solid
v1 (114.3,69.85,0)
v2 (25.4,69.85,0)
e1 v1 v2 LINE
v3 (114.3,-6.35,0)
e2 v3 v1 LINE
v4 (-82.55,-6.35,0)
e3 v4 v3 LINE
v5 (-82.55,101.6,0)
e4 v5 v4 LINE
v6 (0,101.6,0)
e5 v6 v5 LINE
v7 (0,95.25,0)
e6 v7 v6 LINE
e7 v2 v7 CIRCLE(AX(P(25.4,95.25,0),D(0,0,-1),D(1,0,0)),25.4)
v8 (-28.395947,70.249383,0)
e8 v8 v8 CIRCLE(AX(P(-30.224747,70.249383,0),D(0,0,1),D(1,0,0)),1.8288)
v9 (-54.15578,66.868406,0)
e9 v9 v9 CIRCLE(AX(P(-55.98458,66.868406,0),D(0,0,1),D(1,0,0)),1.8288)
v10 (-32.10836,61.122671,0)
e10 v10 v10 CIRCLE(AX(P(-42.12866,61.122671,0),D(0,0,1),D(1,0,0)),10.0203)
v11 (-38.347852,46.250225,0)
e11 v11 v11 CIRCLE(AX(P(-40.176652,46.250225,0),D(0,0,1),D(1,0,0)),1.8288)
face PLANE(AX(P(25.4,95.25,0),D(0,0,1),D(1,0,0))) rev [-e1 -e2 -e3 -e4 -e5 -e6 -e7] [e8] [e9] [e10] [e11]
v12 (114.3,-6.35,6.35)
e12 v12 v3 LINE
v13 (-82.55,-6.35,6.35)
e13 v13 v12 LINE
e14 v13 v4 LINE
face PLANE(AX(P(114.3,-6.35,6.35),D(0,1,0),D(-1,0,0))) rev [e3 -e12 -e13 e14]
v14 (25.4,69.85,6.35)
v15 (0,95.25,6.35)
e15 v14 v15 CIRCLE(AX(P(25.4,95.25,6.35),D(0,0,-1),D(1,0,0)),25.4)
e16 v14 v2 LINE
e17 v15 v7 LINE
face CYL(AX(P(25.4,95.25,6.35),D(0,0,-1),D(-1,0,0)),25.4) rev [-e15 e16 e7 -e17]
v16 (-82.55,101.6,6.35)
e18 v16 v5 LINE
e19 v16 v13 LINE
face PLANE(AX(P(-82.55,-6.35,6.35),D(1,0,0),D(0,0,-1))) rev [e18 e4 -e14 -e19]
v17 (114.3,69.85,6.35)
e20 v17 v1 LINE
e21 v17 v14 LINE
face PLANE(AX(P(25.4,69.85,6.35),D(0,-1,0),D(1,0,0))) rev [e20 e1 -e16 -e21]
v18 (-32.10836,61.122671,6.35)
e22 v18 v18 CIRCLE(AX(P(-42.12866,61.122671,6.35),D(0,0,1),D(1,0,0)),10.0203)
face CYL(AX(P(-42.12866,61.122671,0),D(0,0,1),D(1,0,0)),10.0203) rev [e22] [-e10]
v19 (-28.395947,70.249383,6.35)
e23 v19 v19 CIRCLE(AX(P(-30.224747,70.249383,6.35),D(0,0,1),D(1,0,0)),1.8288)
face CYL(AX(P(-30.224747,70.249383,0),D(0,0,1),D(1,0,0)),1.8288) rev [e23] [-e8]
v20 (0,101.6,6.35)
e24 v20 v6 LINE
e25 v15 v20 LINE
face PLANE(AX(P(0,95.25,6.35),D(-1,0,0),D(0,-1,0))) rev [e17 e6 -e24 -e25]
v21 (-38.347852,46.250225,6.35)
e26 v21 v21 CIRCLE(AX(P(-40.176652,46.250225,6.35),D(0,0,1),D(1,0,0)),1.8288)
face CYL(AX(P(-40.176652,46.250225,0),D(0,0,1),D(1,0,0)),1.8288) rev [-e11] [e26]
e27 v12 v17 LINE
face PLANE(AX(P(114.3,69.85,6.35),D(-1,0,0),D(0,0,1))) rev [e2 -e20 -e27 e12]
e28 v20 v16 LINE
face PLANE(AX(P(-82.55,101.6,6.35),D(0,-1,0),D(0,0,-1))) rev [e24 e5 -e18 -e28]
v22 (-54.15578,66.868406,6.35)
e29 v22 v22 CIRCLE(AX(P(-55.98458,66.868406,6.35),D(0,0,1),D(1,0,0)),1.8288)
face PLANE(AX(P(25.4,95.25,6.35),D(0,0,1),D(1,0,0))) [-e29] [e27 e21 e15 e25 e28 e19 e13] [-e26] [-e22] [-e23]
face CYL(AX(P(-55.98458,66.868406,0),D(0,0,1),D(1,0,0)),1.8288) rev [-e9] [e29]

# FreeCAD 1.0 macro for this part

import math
import FreeCAD as App
import Part
import Sketcher
from FreeCAD import Vector
Q = App.Units.Quantity

doc = App.newDocument("Part")
params = doc.addObject("Spreadsheet::Sheet", "Params")
for row, (alias, value) in enumerate([
    ("sketch1_radius", "1 in"),
    ("sketch1_height", "3 in"),
    ("sketch1_width", "3.5 in"),
    ("sketch1_width2", "7.75 in"),
    ("sketch1_height2", "4.25 in"),
    ("pad1_length", "0.25 in"),
    ("sketch2_diameter", "0.789 in"),
    ("sketch2_diameter2", "0.144 in"),
], start=1):
    params.set(f"A{row}", alias)
    params.set(f"B{row}", "=" + value)
    params.setAlias(f"B{row}", alias)

body = doc.addObject("PartDesign::Body", "Body")

# Sketch on XY plane
sketch1 = body.newObject("Sketcher::SketchObject", "Sketch")
sketch1.AttachmentSupport = (doc.getObject("XY_Plane"), [""])
sketch1.MapMode = "FlatFace"
sketch1.addGeometry(Part.LineSegment(Vector(-83, 102, 0), Vector(-83, -6, 0)), False)
sketch1.addGeometry(Part.LineSegment(Vector(-83, -6, 0), Vector(114, -6, 0)), False)
sketch1.addGeometry(Part.LineSegment(Vector(114, -6, 0), Vector(114, 70, 0)), False)
sketch1.addGeometry(Part.LineSegment(Vector(114, 70, 0), Vector(25, 70, 0)), False)
sketch1.addGeometry(Part.ArcOfCircle(Part.Circle(Vector(25, 95, 0), Vector(0, 0, 1), 25), math.radians(180), math.radians(270)), False)
sketch1.addGeometry(Part.LineSegment(Vector(0, 95, 0), Vector(0, 102, 0)), False)
sketch1.addGeometry(Part.LineSegment(Vector(0, 102, 0), Vector(-83, 102, 0)), False)
sketch1.addConstraint(Sketcher.Constraint("Coincident", 0, 2, 1, 1))
sketch1.addConstraint(Sketcher.Constraint("Coincident", 1, 2, 2, 1))
sketch1.addConstraint(Sketcher.Constraint("Coincident", 2, 2, 3, 1))
sketch1.addConstraint(Sketcher.Constraint("Tangent", 3, 2, 4, 2))
sketch1.addConstraint(Sketcher.Constraint("Tangent", 4, 1, 5, 1))
sketch1.addConstraint(Sketcher.Constraint("Coincident", 5, 2, 6, 1))
sketch1.addConstraint(Sketcher.Constraint("Coincident", 6, 2, 0, 1))
sketch1.addConstraint(Sketcher.Constraint("Vertical", 0))
sketch1.addConstraint(Sketcher.Constraint("Horizontal", 1))
sketch1.addConstraint(Sketcher.Constraint("Vertical", 2))
sketch1.addConstraint(Sketcher.Constraint("Horizontal", 3))
sketch1.addConstraint(Sketcher.Constraint("Vertical", 5))
sketch1.addConstraint(Sketcher.Constraint("Horizontal", 6))
sketch1.addConstraint(Sketcher.Constraint("PointOnObject", 4, 1, -2))
sketch1.addConstraint(Sketcher.Constraint("Radius", 4, Q("1 in")))
sketch1.addConstraint(Sketcher.Constraint("DistanceY", 2, 1, 2, 2, Q("3 in")))
sketch1.addConstraint(Sketcher.Constraint("DistanceX", 3, 2, 3, 1, Q("3.5 in")))
sketch1.addConstraint(Sketcher.Constraint("DistanceY", -1, 1, 5, 2, Q("4 in")))
sketch1.addConstraint(Sketcher.Constraint("DistanceX", 1, 1, 1, 2, Q("7.75 in")))
sketch1.addConstraint(Sketcher.Constraint("DistanceY", 0, 2, 0, 1, Q("4.25 in")))
sketch1.setExpression("Constraints[14]", "Params.sketch1_radius")
sketch1.setExpression("Constraints[15]", "Params.sketch1_height")
sketch1.setExpression("Constraints[16]", "Params.sketch1_width")
sketch1.setExpression("Constraints[18]", "Params.sketch1_width2")
sketch1.setExpression("Constraints[19]", "Params.sketch1_height2")
pad1 = body.newObject("PartDesign::Pad", "Pad")
pad1.Profile = sketch1
pad1.setExpression("Length", "Params.pad1_length")

# Sketch on XY plane
sketch2 = body.newObject("Sketcher::SketchObject", "Sketch001")
sketch2.AttachmentSupport = (doc.getObject("XY_Plane"), [""])
sketch2.MapMode = "FlatFace"
sketch2.AttachmentOffset = App.Placement(Vector(0, 0, 0.25 * 25.4), App.Rotation())
sketch2.addGeometry(Part.Circle(Vector(-42.1, 61.1, 0), Vector(0, 0, 1), 10), False)
sketch2.addGeometry(Part.Circle(Vector(-30.2, 70.2, 0), Vector(0, 0, 1), 1.8), False)
sketch2.addGeometry(Part.Circle(Vector(-56, 66.9, 0), Vector(0, 0, 1), 1.8), False)
sketch2.addGeometry(Part.Circle(Vector(-40.2, 46.3, 0), Vector(0, 0, 1), 1.8), False)
sketch2.addConstraint(Sketcher.Constraint("Equal", 1, 2))
sketch2.addConstraint(Sketcher.Constraint("Equal", 2, 3))
sketch2.addConstraint(Sketcher.Constraint("Diameter", 0, Q("0.789 in")))
sketch2.addConstraint(Sketcher.Constraint("Diameter", 1, Q("0.144 in")))
sketch2.addConstraint(Sketcher.Constraint("DistanceX", 0, 3, -1, 1, Q("42.12866 mm")))
sketch2.addConstraint(Sketcher.Constraint("DistanceY", -1, 1, 0, 3, Q("61.122671 mm")))
sketch2.addConstraint(Sketcher.Constraint("DistanceX", 2, 3, -1, 1, Q("55.98458 mm")))
sketch2.addConstraint(Sketcher.Constraint("DistanceY", 0, 3, 1, 3, Q("9.126711 mm")))
sketch2.addConstraint(Sketcher.Constraint("DistanceY", 3, 3, 2, 3, Q("20.618182 mm")))
sketch2.addConstraint(Sketcher.Constraint("DistanceX", 1, 3, -1, 1, Q("30.224747 mm")))
sketch2.addConstraint(Sketcher.Constraint("DistanceY", -1, 1, 2, 3, Q("66.868406 mm")))
sketch2.addConstraint(Sketcher.Constraint("DistanceX", 3, 3, -1, 1, Q("40.176652 mm")))
sketch2.setExpression("Constraints[2]", "Params.sketch2_diameter")
sketch2.setExpression("Constraints[3]", "Params.sketch2_diameter2")
pocket1 = body.newObject("PartDesign::Pocket", "Pocket")
pocket1.Profile = sketch2
pocket1.Type = "ThroughAll"

doc.recompute()
